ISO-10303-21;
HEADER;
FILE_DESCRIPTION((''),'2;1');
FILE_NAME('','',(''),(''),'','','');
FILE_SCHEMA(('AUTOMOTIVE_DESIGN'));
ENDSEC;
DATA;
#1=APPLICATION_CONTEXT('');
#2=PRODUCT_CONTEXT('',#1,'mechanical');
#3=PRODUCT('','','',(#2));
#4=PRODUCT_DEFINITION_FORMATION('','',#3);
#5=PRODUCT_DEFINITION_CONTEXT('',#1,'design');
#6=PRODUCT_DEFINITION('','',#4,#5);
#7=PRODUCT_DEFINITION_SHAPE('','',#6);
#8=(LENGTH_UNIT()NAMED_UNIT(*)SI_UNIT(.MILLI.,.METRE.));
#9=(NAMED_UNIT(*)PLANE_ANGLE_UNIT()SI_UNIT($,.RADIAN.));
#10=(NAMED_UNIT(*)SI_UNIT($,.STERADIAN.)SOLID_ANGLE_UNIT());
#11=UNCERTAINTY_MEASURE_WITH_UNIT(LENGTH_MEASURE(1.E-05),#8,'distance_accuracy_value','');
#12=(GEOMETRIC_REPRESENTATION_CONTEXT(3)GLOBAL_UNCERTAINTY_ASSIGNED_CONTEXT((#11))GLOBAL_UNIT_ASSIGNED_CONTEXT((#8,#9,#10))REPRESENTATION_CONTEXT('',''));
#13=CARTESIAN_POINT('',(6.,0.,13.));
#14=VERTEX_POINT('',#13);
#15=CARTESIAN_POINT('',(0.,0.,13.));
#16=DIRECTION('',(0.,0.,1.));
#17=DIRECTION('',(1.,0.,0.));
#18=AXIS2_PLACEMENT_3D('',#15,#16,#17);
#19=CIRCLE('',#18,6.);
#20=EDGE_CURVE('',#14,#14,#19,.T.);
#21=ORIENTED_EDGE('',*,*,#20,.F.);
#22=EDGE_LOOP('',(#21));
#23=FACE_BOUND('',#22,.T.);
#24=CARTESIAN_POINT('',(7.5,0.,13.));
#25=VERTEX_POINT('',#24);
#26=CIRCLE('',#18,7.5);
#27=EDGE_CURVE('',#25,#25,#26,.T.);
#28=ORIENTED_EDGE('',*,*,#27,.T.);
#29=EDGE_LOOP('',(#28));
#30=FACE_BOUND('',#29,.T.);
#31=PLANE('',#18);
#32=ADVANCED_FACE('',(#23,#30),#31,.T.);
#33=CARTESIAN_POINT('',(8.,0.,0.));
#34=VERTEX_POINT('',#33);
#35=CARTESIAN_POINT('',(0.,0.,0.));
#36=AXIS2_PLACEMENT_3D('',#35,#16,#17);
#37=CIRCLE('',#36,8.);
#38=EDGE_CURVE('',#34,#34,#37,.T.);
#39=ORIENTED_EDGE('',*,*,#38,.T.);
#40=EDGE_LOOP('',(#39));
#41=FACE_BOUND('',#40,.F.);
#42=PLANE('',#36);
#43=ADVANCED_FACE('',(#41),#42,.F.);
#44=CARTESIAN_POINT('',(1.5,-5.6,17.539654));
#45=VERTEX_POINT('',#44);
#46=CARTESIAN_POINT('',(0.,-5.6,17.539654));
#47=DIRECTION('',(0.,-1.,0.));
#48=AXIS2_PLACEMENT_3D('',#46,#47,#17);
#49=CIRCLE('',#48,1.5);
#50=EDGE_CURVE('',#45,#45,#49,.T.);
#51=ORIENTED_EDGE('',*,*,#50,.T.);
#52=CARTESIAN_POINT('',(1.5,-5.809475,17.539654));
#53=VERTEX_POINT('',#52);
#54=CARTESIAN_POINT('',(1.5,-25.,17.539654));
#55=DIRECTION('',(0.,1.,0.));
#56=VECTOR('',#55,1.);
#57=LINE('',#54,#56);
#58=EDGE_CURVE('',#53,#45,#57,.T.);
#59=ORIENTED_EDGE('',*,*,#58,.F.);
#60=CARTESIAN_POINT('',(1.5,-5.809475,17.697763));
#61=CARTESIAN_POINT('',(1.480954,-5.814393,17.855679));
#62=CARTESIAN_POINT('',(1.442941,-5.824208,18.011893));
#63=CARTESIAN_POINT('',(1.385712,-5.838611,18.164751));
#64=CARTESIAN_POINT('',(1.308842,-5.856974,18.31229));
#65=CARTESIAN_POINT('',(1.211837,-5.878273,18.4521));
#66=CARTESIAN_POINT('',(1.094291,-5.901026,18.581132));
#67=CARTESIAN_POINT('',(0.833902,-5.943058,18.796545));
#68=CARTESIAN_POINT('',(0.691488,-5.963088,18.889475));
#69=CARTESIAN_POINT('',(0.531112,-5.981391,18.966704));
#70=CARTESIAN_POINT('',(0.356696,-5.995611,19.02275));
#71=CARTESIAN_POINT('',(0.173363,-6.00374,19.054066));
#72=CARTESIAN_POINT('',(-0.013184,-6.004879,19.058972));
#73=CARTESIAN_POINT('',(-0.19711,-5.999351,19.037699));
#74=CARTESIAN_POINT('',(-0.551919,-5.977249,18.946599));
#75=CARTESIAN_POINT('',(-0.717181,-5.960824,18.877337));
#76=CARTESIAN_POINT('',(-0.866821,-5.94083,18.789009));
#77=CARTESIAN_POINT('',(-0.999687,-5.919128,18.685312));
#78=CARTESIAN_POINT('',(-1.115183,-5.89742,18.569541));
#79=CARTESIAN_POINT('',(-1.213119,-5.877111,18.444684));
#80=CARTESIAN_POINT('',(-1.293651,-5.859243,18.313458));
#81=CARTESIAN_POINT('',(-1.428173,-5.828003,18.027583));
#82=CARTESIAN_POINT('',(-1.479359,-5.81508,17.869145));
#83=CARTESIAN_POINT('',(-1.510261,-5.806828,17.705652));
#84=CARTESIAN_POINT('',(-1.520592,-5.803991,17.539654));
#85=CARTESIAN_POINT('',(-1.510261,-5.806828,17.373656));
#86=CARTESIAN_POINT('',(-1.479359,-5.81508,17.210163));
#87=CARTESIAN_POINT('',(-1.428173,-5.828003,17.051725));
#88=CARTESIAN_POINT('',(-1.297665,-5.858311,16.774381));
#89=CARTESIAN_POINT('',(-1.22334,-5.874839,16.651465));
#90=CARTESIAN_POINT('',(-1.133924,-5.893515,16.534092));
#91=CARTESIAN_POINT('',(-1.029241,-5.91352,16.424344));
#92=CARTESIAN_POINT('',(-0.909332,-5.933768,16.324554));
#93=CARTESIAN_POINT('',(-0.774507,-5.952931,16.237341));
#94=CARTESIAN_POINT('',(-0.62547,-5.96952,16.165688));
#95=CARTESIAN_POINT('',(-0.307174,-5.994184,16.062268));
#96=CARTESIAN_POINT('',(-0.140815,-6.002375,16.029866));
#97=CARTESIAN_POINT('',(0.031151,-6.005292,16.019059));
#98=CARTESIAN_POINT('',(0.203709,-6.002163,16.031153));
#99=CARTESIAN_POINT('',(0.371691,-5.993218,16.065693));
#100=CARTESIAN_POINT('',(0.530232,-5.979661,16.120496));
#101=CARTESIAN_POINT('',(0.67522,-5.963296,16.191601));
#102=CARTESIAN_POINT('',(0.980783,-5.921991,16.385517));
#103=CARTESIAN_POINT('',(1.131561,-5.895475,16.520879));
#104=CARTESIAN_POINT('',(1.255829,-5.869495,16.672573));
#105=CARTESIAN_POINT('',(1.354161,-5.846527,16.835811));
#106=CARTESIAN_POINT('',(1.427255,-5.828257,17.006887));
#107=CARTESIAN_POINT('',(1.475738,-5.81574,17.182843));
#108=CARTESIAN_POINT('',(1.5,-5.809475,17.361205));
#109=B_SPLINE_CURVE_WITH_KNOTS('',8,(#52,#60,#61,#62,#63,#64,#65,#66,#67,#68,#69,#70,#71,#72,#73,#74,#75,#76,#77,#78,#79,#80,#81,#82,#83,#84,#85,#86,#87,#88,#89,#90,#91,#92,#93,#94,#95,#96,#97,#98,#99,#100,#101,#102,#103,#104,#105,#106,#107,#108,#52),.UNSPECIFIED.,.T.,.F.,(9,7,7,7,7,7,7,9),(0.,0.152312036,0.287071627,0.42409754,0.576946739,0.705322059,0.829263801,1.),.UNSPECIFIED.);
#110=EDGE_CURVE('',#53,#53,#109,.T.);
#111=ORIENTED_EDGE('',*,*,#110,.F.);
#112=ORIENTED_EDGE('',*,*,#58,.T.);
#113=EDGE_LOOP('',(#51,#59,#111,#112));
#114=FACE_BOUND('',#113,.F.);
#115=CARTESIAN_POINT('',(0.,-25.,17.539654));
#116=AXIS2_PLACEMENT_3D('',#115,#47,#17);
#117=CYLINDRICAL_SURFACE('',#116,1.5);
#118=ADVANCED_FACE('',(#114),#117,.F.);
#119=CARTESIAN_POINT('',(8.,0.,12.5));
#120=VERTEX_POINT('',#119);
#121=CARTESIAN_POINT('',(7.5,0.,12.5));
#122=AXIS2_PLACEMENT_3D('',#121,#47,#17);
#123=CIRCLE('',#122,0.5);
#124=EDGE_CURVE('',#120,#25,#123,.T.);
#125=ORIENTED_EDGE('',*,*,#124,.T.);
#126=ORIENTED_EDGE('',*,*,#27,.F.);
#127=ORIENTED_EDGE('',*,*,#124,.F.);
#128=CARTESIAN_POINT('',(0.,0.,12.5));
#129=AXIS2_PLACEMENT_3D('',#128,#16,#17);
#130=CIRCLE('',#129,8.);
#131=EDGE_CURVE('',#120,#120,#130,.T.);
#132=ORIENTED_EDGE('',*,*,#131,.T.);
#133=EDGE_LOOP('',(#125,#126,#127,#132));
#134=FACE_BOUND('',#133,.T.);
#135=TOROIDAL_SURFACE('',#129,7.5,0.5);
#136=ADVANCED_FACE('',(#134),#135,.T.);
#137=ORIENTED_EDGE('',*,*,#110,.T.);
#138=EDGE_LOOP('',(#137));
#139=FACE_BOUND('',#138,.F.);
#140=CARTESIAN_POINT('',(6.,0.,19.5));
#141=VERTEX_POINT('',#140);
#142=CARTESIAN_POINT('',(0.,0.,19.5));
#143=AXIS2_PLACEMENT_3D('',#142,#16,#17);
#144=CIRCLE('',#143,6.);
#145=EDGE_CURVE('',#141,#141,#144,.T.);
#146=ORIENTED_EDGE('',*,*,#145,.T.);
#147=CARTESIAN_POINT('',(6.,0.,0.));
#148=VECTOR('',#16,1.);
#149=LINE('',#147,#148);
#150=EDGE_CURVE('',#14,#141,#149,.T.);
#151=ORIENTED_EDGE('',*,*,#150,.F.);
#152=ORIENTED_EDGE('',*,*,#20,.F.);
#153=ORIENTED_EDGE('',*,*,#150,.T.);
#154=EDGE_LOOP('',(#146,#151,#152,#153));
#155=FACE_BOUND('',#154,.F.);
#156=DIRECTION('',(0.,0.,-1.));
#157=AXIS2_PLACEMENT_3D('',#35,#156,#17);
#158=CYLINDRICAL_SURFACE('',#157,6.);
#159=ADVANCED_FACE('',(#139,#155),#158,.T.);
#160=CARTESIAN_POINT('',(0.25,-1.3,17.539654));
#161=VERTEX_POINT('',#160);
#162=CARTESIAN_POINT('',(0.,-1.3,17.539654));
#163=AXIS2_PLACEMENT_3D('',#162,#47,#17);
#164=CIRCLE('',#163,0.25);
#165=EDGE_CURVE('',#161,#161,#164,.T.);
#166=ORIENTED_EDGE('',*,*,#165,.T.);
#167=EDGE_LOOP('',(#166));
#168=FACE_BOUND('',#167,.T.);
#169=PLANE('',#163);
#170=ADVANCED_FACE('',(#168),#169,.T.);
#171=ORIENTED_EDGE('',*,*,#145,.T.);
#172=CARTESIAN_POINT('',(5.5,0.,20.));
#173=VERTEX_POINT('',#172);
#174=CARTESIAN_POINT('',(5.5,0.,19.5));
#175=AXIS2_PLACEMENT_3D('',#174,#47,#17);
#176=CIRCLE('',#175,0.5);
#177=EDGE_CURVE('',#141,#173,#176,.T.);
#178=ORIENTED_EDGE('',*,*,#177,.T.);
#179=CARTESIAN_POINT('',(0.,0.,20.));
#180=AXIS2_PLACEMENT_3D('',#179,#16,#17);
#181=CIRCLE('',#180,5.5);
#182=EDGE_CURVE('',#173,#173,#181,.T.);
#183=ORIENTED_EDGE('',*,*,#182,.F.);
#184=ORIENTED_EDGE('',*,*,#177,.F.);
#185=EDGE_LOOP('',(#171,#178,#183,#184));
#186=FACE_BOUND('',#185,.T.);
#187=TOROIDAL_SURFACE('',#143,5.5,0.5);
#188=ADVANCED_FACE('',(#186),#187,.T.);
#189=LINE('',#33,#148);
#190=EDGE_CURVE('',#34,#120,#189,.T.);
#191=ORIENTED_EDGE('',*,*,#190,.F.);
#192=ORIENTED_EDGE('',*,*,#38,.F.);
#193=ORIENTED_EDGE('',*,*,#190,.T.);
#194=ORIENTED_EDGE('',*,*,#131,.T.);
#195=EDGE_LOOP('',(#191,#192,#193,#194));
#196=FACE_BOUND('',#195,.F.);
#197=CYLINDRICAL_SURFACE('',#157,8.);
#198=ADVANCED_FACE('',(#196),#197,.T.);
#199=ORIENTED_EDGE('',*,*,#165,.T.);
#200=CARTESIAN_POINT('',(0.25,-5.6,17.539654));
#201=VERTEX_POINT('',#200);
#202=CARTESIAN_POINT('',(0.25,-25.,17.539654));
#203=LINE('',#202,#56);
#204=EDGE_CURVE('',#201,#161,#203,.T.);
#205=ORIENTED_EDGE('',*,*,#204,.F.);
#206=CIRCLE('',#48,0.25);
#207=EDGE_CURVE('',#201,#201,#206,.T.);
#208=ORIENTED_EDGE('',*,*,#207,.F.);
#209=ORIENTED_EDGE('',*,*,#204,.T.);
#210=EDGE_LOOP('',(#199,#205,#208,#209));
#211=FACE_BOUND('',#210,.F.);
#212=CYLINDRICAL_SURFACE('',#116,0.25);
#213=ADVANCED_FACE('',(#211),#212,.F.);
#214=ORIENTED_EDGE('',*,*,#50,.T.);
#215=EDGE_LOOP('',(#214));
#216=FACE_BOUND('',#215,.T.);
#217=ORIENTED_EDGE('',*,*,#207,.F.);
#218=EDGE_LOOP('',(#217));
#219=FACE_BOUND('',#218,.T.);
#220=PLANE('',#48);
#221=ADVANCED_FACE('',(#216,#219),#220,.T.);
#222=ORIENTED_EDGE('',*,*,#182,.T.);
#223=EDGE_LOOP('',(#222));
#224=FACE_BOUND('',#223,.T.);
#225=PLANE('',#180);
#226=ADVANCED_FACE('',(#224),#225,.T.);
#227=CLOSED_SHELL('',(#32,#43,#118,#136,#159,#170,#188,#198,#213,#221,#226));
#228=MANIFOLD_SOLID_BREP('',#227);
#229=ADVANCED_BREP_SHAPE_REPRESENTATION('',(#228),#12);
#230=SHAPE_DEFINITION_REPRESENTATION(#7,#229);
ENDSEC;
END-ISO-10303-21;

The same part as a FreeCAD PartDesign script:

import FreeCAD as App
import Part
import Sketcher
from FreeCAD import Vector


def edges_at(feature, points):
    """Names of the edges that pass closest to the given points."""
    edges = feature.Shape.Edges
    near = lambda p: min(range(len(edges)), key=lambda i: edges[i].distToShape(Part.Vertex(*p))[0])
    return sorted({f"Edge{near(p) + 1}" for p in points})

doc = App.newDocument("Part")
params = doc.addObject("Spreadsheet::Sheet", "Params")
for row, (alias, value) in enumerate([
    ("sketch1_diameter", "12 mm"),
    ("pad1_length", "20 mm"),
    ("sketch2_diameter", "16 mm"),
    ("sketch2_diameter2", "12 mm"),
    ("pad2_length", "13 mm"),
    ("sketch3_diameter", "0.5 mm"),
    ("pocket1_length", "23.7 mm"),
    ("sketch4_diameter", "3 mm"),
    ("sketch4_diameter2", "0.5 mm"),
    ("pocket2_length", "19.4 mm"),
    ("fillet_radius", "0.5 mm"),
], start=1):
    params.set(f"A{row}", alias)
    params.set(f"B{row}", "=" + value)
    params.setAlias(f"B{row}", alias)

body = doc.addObject("PartDesign::Body", "Body")

# Sketch on XY plane
sketch1 = doc.addObject("Sketcher::SketchObject", "Sketch")
body.addObject(sketch1)
sketch1.AttachmentSupport = (doc.XY_Plane, [""])
sketch1.MapMode = "FlatFace"
sketch1.addGeometry(Part.Circle(Vector(0, 0, 0), Vector(0, 0, 1), 6), False)
sketch1.addConstraint(Sketcher.Constraint("Coincident", 0, 3, -1, 1))
sketch1.addConstraint(Sketcher.Constraint("Diameter", 0, 12.0))
sketch1.setExpression("Constraints[1]", "Params.sketch1_diameter")
pad1 = doc.addObject("PartDesign::Pad", "Pad")
body.addObject(pad1)
pad1.Profile = sketch1
pad1.setExpression("Length", "Params.pad1_length")

# Sketch on XY plane
sketch2 = doc.addObject("Sketcher::SketchObject", "Sketch001")
body.addObject(sketch2)
sketch2.AttachmentSupport = (doc.XY_Plane, [""])
sketch2.MapMode = "FlatFace"
sketch2.addGeometry(Part.Circle(Vector(0, 0, 0), Vector(0, 0, 1), 8), False)
sketch2.addGeometry(Part.Circle(Vector(0, 0, 0), Vector(0, 0, 1), 6), False)
sketch2.addConstraint(Sketcher.Constraint("Coincident", 0, 3, -1, 1))
sketch2.addConstraint(Sketcher.Constraint("Coincident", 1, 3, -1, 1))
sketch2.addConstraint(Sketcher.Constraint("Diameter", 0, 16.0))
sketch2.addConstraint(Sketcher.Constraint("Diameter", 1, 12.0))
sketch2.setExpression("Constraints[2]", "Params.sketch2_diameter")
sketch2.setExpression("Constraints[3]", "Params.sketch2_diameter2")
pad2 = doc.addObject("PartDesign::Pad", "Pad001")
body.addObject(pad2)
pad2.Profile = sketch2
pad2.setExpression("Length", "Params.pad2_length")

# Sketch on XZ plane
sketch3 = doc.addObject("Sketcher::SketchObject", "Sketch002")
body.addObject(sketch3)
sketch3.AttachmentSupport = (doc.XZ_Plane, [""])
sketch3.MapMode = "FlatFace"
sketch3.AttachmentOffset = App.Placement(Vector(0, 0, 25), App.Rotation())
sketch3.addGeometry(Part.Circle(Vector(0, 17.54, 0), Vector(0, 0, 1), 0.25), False)
sketch3.addConstraint(Sketcher.Constraint("PointOnObject", 0, 3, -2))
sketch3.addConstraint(Sketcher.Constraint("Diameter", 0, 0.5))
sketch3.addConstraint(Sketcher.Constraint("DistanceY", -1, 1, 0, 3, 17.539654))
sketch3.setExpression("Constraints[1]", "Params.sketch3_diameter")
pocket1 = doc.addObject("PartDesign::Pocket", "Pocket")
body.addObject(pocket1)
pocket1.Profile = sketch3
pocket1.setExpression("Length", "Params.pocket1_length")

# Sketch on XZ plane
sketch4 = doc.addObject("Sketcher::SketchObject", "Sketch003")
body.addObject(sketch4)
sketch4.AttachmentSupport = (doc.XZ_Plane, [""])
sketch4.MapMode = "FlatFace"
sketch4.AttachmentOffset = App.Placement(Vector(0, 0, 25), App.Rotation())
sketch4.addGeometry(Part.Circle(Vector(0, 17.54, 0), Vector(0, 0, 1), 1.5), False)
sketch4.addGeometry(Part.Circle(Vector(0, 17.54, 0), Vector(0, 0, 1), 0.25), False)
sketch4.addConstraint(Sketcher.Constraint("Coincident", 1, 3, 0, 3))
sketch4.addConstraint(Sketcher.Constraint("PointOnObject", 0, 3, -2))
sketch4.addConstraint(Sketcher.Constraint("Diameter", 0, 3.0))
sketch4.addConstraint(Sketcher.Constraint("Diameter", 1, 0.5))
sketch4.addConstraint(Sketcher.Constraint("DistanceY", -1, 1, 0, 3, 17.539654))
sketch4.setExpression("Constraints[2]", "Params.sketch4_diameter")
sketch4.setExpression("Constraints[3]", "Params.sketch4_diameter2")
pocket2 = doc.addObject("PartDesign::Pocket", "Pocket001")
body.addObject(pocket2)
pocket2.Profile = sketch4
pocket2.setExpression("Length", "Params.pocket2_length")
doc.recompute()

fillet = doc.addObject("PartDesign::Fillet", "Fillet")
body.addObject(fillet)
fillet.Base = (pocket2, edges_at(pocket2, [(-8, 0, 13), (-6, 0, 20)]))
fillet.setExpression("Radius", "Params.fillet_radius")

doc.recompute()
